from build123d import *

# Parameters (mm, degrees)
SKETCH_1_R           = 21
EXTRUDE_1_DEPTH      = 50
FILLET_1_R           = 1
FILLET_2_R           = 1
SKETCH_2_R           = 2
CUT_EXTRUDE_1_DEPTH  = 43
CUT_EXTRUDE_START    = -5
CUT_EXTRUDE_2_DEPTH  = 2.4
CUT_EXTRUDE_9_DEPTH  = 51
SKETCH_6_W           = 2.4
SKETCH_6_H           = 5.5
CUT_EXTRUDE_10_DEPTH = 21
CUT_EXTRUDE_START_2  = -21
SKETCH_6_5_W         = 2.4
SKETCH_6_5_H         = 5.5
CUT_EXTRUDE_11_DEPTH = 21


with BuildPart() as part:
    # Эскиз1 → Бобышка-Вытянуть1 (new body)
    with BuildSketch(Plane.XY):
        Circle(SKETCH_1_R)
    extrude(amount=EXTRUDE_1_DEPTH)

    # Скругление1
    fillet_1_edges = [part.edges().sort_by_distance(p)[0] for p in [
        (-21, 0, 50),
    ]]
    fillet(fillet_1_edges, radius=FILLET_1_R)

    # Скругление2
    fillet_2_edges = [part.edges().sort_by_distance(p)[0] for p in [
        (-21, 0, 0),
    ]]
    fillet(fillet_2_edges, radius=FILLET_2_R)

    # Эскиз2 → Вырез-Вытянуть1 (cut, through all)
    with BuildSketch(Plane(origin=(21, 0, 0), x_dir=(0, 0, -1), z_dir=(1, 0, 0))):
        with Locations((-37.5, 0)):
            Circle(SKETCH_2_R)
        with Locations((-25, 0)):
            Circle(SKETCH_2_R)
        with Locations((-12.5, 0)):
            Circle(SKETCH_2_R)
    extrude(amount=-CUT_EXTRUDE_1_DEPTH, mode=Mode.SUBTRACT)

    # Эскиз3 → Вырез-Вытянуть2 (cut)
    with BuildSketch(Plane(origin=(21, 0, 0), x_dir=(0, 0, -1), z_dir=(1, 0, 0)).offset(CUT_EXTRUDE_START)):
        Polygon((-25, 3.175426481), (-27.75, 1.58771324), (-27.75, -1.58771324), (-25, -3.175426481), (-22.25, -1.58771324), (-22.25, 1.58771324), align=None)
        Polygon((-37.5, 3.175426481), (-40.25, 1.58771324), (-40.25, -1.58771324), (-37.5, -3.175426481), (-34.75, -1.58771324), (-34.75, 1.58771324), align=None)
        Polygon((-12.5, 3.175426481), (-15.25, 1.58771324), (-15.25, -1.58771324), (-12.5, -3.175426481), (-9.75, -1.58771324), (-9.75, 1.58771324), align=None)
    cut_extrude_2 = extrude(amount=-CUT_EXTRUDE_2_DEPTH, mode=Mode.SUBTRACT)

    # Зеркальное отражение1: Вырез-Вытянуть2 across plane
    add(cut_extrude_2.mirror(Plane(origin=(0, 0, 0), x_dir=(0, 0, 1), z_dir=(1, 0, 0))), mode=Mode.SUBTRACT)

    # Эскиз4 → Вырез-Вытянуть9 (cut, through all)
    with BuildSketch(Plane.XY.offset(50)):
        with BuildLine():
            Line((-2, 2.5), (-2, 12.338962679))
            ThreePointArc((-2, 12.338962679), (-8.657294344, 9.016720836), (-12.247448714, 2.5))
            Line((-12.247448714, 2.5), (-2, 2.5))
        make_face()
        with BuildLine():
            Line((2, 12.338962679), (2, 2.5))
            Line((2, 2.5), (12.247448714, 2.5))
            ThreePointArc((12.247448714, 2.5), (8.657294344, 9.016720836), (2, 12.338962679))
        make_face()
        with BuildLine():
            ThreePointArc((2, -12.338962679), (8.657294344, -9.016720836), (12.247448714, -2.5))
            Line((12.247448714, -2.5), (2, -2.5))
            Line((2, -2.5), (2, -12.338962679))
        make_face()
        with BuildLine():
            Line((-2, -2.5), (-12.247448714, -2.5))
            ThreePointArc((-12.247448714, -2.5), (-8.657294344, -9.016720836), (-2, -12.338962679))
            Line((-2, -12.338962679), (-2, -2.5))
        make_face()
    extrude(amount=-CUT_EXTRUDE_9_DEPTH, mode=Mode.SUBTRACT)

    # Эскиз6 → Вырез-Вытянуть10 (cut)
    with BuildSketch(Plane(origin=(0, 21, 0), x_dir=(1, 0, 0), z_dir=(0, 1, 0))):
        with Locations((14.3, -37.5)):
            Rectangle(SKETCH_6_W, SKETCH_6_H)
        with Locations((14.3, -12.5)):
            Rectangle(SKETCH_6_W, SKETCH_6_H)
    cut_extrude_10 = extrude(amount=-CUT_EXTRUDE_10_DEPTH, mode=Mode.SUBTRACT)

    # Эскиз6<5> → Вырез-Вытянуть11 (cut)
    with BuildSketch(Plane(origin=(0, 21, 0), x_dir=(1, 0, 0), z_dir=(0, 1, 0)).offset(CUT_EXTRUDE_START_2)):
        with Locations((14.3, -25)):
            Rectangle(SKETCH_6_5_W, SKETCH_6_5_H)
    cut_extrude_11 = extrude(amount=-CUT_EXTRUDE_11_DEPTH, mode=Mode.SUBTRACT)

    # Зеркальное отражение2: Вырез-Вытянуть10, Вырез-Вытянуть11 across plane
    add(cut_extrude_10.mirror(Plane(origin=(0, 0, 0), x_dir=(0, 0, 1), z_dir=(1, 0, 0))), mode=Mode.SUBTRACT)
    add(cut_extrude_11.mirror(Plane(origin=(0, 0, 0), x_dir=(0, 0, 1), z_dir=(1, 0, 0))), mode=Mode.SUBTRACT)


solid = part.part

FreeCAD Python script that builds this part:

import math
import FreeCAD as App
import Part
import Sketcher

V = App.Vector
Q = App.Units.Quantity


def edges_at(feature, points):
    """Names of the edges that pass closest to the given points."""
    edges = feature.Shape.Edges
    near = lambda p: min(range(len(edges)), key=lambda i: edges[i].distToShape(Part.Vertex(*p))[0])
    return sorted({f"Edge{near(p) + 1}" for p in points})

doc = App.newDocument("Part")
params = doc.addObject("Spreadsheet::Sheet", "Params")
for row, (alias, value) in enumerate([
    ("sketch1_diameter", "42 mm"),
    ("pad1_length", "50 mm"),
    ("fillet_radius", "1 mm"),
    ("fillet2_radius", "1 mm"),
    ("sketch2_diameter", "4 mm"),
    ("pocket2_length", "2.4 mm"),
    ("sketch4_radius", "12.5 mm"),
    ("sketch5_width", "2.4 mm"),
    ("sketch5_height", "5.5 mm"),
    ("pocket4_length", "21 mm"),
    ("sketch6_width", "2.4 mm"),
    ("sketch6_height", "5.5 mm"),
    ("pocket5_length", "21 mm"),
], start=1):
    params.set(f"A{row}", alias)
    params.set(f"B{row}", "=" + value)
    params.setAlias(f"B{row}", alias)

body = doc.addObject("PartDesign::Body", "Body")

# Sketch on XY plane
sketch1 = body.newObject("Sketcher::SketchObject", "Sketch")
sketch1.AttachmentSupport = (doc.getObject("XY_Plane"), [""])
sketch1.MapMode = "FlatFace"
sketch1.addGeometry(Part.Circle(V(0, 0, 0), V(0, 0, 1), 21), False)
sketch1.addConstraint(Sketcher.Constraint("Coincident", 0, 3, -1, 1))
sketch1.addConstraint(Sketcher.Constraint("Diameter", 0, 42.0))
sketch1.setExpression("Constraints[1]", "Params.sketch1_diameter")
pad1 = body.newObject("PartDesign::Pad", "Pad")
pad1.Profile = sketch1
pad1.setExpression("Length", "Params.pad1_length")
doc.recompute()

fillet = body.newObject("PartDesign::Fillet", "Fillet")
fillet.Base = (pad1, edges_at(pad1, [(-21, 0, 50)]))
fillet.setExpression("Radius", "Params.fillet_radius")
doc.recompute()

fillet2 = body.newObject("PartDesign::Fillet", "Fillet001")
fillet2.Base = (fillet, edges_at(fillet, [(-21, 0, 0)]))
fillet2.setExpression("Radius", "Params.fillet2_radius")

# Sketch on YZ plane
sketch2 = body.newObject("Sketcher::SketchObject", "Sketch001")
sketch2.AttachmentSupport = (doc.getObject("YZ_Plane"), [""])
sketch2.MapMode = "FlatFace"
sketch2.AttachmentOffset = App.Placement(V(0, 0, 21), App.Rotation())
sketch2.addGeometry(Part.Circle(V(0, 37.5, 0), V(0, 0, 1), 2), False)
sketch2.addGeometry(Part.Circle(V(0, 25, 0), V(0, 0, 1), 2), False)
sketch2.addGeometry(Part.Circle(V(0, 12.5, 0), V(0, 0, 1), 2), False)
sketch2.addConstraint(Sketcher.Constraint("Equal", 0, 1))
sketch2.addConstraint(Sketcher.Constraint("Equal", 1, 2))
sketch2.addConstraint(Sketcher.Constraint("PointOnObject", 0, 3, -2))
sketch2.addConstraint(Sketcher.Constraint("PointOnObject", 1, 3, -2))
sketch2.addConstraint(Sketcher.Constraint("PointOnObject", 2, 3, -2))
sketch2.addConstraint(Sketcher.Constraint("Diameter", 0, 4.0))
sketch2.addConstraint(Sketcher.Constraint("DistanceY", -1, 1, 1, 3, 25.0))
sketch2.addConstraint(Sketcher.Constraint("DistanceY", 2, 3, 0, 3, 25.0))
sketch2.addConstraint(Sketcher.Constraint("DistanceY", -1, 1, 0, 3, 37.5))
sketch2.setExpression("Constraints[5]", "Params.sketch2_diameter")
pocket1 = body.newObject("PartDesign::Pocket", "Pocket")
pocket1.Profile = sketch2
pocket1.Type = "ThroughAll"

# Sketch on YZ plane
sketch3 = body.newObject("Sketcher::SketchObject", "Sketch002")
sketch3.AttachmentSupport = (doc.getObject("YZ_Plane"), [""])
sketch3.MapMode = "FlatFace"
sketch3.AttachmentOffset = App.Placement(V(0, 0, 16), App.Rotation())
sketch3.addGeometry(Part.LineSegment(V(3.2, 25, 0), V(1.6, 27.8, 0)), False)
sketch3.addGeometry(Part.LineSegment(V(1.6, 27.8, 0), V(-1.6, 27.8, 0)), False)
sketch3.addGeometry(Part.LineSegment(V(-1.6, 27.8, 0), V(-3.2, 25, 0)), False)
sketch3.addGeometry(Part.LineSegment(V(-3.2, 25, 0), V(-1.6, 22.2, 0)), False)
sketch3.addGeometry(Part.LineSegment(V(-1.6, 22.2, 0), V(1.6, 22.2, 0)), False)
sketch3.addGeometry(Part.LineSegment(V(1.6, 22.2, 0), V(3.2, 25, 0)), False)
sketch3.addGeometry(Part.LineSegment(V(3.2, 37.5, 0), V(1.6, 40.2, 0)), False)
sketch3.addGeometry(Part.LineSegment(V(1.6, 40.2, 0), V(-1.6, 40.2, 0)), False)
sketch3.addGeometry(Part.LineSegment(V(-1.6, 40.2, 0), V(-3.2, 37.5, 0)), False)
sketch3.addGeometry(Part.LineSegment(V(-3.2, 37.5, 0), V(-1.6, 34.8, 0)), False)
sketch3.addGeometry(Part.LineSegment(V(-1.6, 34.8, 0), V(1.6, 34.8, 0)), False)
sketch3.addGeometry(Part.LineSegment(V(1.6, 34.8, 0), V(3.2, 37.5, 0)), False)
sketch3.addGeometry(Part.LineSegment(V(3.2, 12.5, 0), V(1.6, 15.2, 0)), False)
sketch3.addGeometry(Part.LineSegment(V(1.6, 15.2, 0), V(-1.6, 15.2, 0)), False)
sketch3.addGeometry(Part.LineSegment(V(-1.6, 15.2, 0), V(-3.2, 12.5, 0)), False)
sketch3.addGeometry(Part.LineSegment(V(-3.2, 12.5, 0), V(-1.6, 9.8, 0)), False)
sketch3.addGeometry(Part.LineSegment(V(-1.6, 9.8, 0), V(1.6, 9.8, 0)), False)
sketch3.addGeometry(Part.LineSegment(V(1.6, 9.8, 0), V(3.2, 12.5, 0)), False)
sketch3.addConstraint(Sketcher.Constraint("Coincident", 0, 2, 1, 1))
sketch3.addConstraint(Sketcher.Constraint("Coincident", 1, 2, 2, 1))
sketch3.addConstraint(Sketcher.Constraint("Coincident", 2, 2, 3, 1))
sketch3.addConstraint(Sketcher.Constraint("Coincident", 3, 2, 4, 1))
sketch3.addConstraint(Sketcher.Constraint("Coincident", 4, 2, 5, 1))
sketch3.addConstraint(Sketcher.Constraint("Coincident", 5, 2, 0, 1))
sketch3.addConstraint(Sketcher.Constraint("Coincident", 6, 2, 7, 1))
sketch3.addConstraint(Sketcher.Constraint("Coincident", 7, 2, 8, 1))
sketch3.addConstraint(Sketcher.Constraint("Coincident", 8, 2, 9, 1))
sketch3.addConstraint(Sketcher.Constraint("Coincident", 9, 2, 10, 1))
sketch3.addConstraint(Sketcher.Constraint("Coincident", 10, 2, 11, 1))
sketch3.addConstraint(Sketcher.Constraint("Coincident", 11, 2, 6, 1))
sketch3.addConstraint(Sketcher.Constraint("Coincident", 12, 2, 13, 1))
sketch3.addConstraint(Sketcher.Constraint("Coincident", 13, 2, 14, 1))
sketch3.addConstraint(Sketcher.Constraint("Coincident", 14, 2, 15, 1))
sketch3.addConstraint(Sketcher.Constraint("Coincident", 15, 2, 16, 1))
sketch3.addConstraint(Sketcher.Constraint("Coincident", 16, 2, 17, 1))
sketch3.addConstraint(Sketcher.Constraint("Coincident", 17, 2, 12, 1))
sketch3.addConstraint(Sketcher.Constraint("Horizontal", 1))
sketch3.addConstraint(Sketcher.Constraint("Horizontal", 4))
sketch3.addConstraint(Sketcher.Constraint("Horizontal", 7))
sketch3.addConstraint(Sketcher.Constraint("Horizontal", 10))
sketch3.addConstraint(Sketcher.Constraint("Horizontal", 13))
sketch3.addConstraint(Sketcher.Constraint("Horizontal", 16))
sketch3.addConstraint(Sketcher.Constraint("Symmetric", 2, 2, 5, 2, -2))
sketch3.addConstraint(Sketcher.Constraint("Symmetric", 8, 2, 11, 2, -2))
sketch3.addConstraint(Sketcher.Constraint("Symmetric", 14, 2, 17, 2, -2))
sketch3.addConstraint(Sketcher.Constraint("Parallel", 0, 3))
sketch3.addConstraint(Sketcher.Constraint("Parallel", 2, 5))
sketch3.addConstraint(Sketcher.Constraint("Parallel", 3, 6))
sketch3.addConstraint(Sketcher.Constraint("Parallel", 5, 8))
sketch3.addConstraint(Sketcher.Constraint("Parallel", 6, 9))
sketch3.addConstraint(Sketcher.Constraint("Parallel", 8, 11))
sketch3.addConstraint(Sketcher.Constraint("Parallel", 9, 12))
sketch3.addConstraint(Sketcher.Constraint("Parallel", 11, 14))
sketch3.addConstraint(Sketcher.Constraint("Parallel", 12, 15))
sketch3.addConstraint(Sketcher.Constraint("Parallel", 14, 17))
sketch3.addConstraint(Sketcher.Constraint("Vertical", 1, 2, 3, 2))
sketch3.addConstraint(Sketcher.Constraint("Vertical", 0, 2, 4, 2))
sketch3.addConstraint(Sketcher.Constraint("Vertical", 4, 2, 6, 2))
sketch3.addConstraint(Sketcher.Constraint("Vertical", 2, 2, 8, 2))
sketch3.addConstraint(Sketcher.Constraint("Vertical", 7, 2, 9, 2))
sketch3.addConstraint(Sketcher.Constraint("Vertical", 10, 2, 12, 2))
sketch3.addConstraint(Sketcher.Constraint("Vertical", 8, 2, 14, 2))
sketch3.addConstraint(Sketcher.Constraint("Vertical", 13, 2, 15, 2))
sketch3.addConstraint(Sketcher.Constraint("Angle", 0, Q("120 deg")))
sketch3.addConstraint(Sketcher.Constraint("DistanceY", -1, 1, 2, 2, 25.0))
sketch3.addConstraint(Sketcher.Constraint("DistanceY", 4, 2, 6, 2, 18.0))
sketch3.addConstraint(Sketcher.Constraint("DistanceY", 1, 2, 9, 2, 7.0))
sketch3.addConstraint(Sketcher.Constraint("DistanceY", 12, 2, 4, 2, 7.0))
sketch3.addConstraint(Sketcher.Constraint("DistanceX", 1, 2, 1, 1, 3.175426))
pocket2 = body.newObject("PartDesign::Pocket", "Pocket001")
pocket2.Profile = sketch3
pocket2.setExpression("Length", "Params.pocket2_length")
doc.recompute()

mirrored = body.newObject("PartDesign::Mirrored", "Mirrored")
mirrored.Originals = [pocket2]
mirrored.MirrorPlane = (doc.getObject("YZ_Plane"), [""])
body.Tip = mirrored

# Sketch on XY plane
sketch4 = body.newObject("Sketcher::SketchObject", "Sketch003")
sketch4.AttachmentSupport = (doc.getObject("XY_Plane"), [""])
sketch4.MapMode = "FlatFace"
sketch4.AttachmentOffset = App.Placement(V(0, 0, 50), App.Rotation())
sketch4.addGeometry(Part.LineSegment(V(-2, 2, 0), V(-2, 12, 0)), False)
sketch4.addGeometry(Part.ArcOfCircle(Part.Circle(V(0, 0, 0), V(0, 0, 1), 13), math.radians(99), math.radians(168)), False)
sketch4.addGeometry(Part.LineSegment(V(-12, 2, 0), V(-2, 2, 0)), False)
sketch4.addGeometry(Part.LineSegment(V(2, 12, 0), V(2, 2, 0)), False)
sketch4.addGeometry(Part.LineSegment(V(2, 2, 0), V(12, 2, 0)), False)
sketch4.addGeometry(Part.ArcOfCircle(Part.Circle(V(0, 0, 0), V(0, 0, 1), 13), math.radians(12), math.radians(81)), False)
sketch4.addGeometry(Part.ArcOfCircle(Part.Circle(V(0, 0, 0), V(0, 0, 1), 13), math.radians(-81), math.radians(-12)), False)
sketch4.addGeometry(Part.LineSegment(V(12, -2, 0), V(2, -2, 0)), False)
sketch4.addGeometry(Part.LineSegment(V(2, -2, 0), V(2, -12, 0)), False)
sketch4.addGeometry(Part.LineSegment(V(-2, -2, 0), V(-12, -2, 0)), False)
sketch4.addGeometry(Part.ArcOfCircle(Part.Circle(V(0, 0, 0), V(0, 0, 1), 13), math.radians(-168), math.radians(-99)), False)
sketch4.addGeometry(Part.LineSegment(V(-2, -12, 0), V(-2, -2, 0)), False)
sketch4.addConstraint(Sketcher.Constraint("Coincident", 0, 2, 1, 1))
sketch4.addConstraint(Sketcher.Constraint("Coincident", 1, 2, 2, 1))
sketch4.addConstraint(Sketcher.Constraint("Coincident", 2, 2, 0, 1))
sketch4.addConstraint(Sketcher.Constraint("Coincident", 3, 2, 4, 1))
sketch4.addConstraint(Sketcher.Constraint("Coincident", 4, 2, 5, 1))
sketch4.addConstraint(Sketcher.Constraint("Coincident", 5, 2, 3, 1))
sketch4.addConstraint(Sketcher.Constraint("Coincident", 6, 2, 7, 1))
sketch4.addConstraint(Sketcher.Constraint("Coincident", 7, 2, 8, 1))
sketch4.addConstraint(Sketcher.Constraint("Coincident", 8, 2, 6, 1))
sketch4.addConstraint(Sketcher.Constraint("Coincident", 9, 2, 10, 1))
sketch4.addConstraint(Sketcher.Constraint("Coincident", 10, 2, 11, 1))
sketch4.addConstraint(Sketcher.Constraint("Coincident", 11, 2, 9, 1))
sketch4.addConstraint(Sketcher.Constraint("Vertical", 0))
sketch4.addConstraint(Sketcher.Constraint("Horizontal", 2))
sketch4.addConstraint(Sketcher.Constraint("Vertical", 3))
sketch4.addConstraint(Sketcher.Constraint("Horizontal", 4))
sketch4.addConstraint(Sketcher.Constraint("Horizontal", 7))
sketch4.addConstraint(Sketcher.Constraint("Vertical", 8))
sketch4.addConstraint(Sketcher.Constraint("Horizontal", 9))
sketch4.addConstraint(Sketcher.Constraint("Vertical", 11))
sketch4.addConstraint(Sketcher.Constraint("Coincident", 1, 3, -1, 1))
sketch4.addConstraint(Sketcher.Constraint("Coincident", 5, 3, -1, 1))
sketch4.addConstraint(Sketcher.Constraint("Coincident", 6, 3, -1, 1))
sketch4.addConstraint(Sketcher.Constraint("Coincident", 10, 3, -1, 1))
sketch4.addConstraint(Sketcher.Constraint("Equal", 1, 5))
sketch4.addConstraint(Sketcher.Constraint("Equal", 5, 6))
sketch4.addConstraint(Sketcher.Constraint("Equal", 6, 10))
sketch4.addConstraint(Sketcher.Constraint("Symmetric", 2, 2, 7, 2, -1, 1))
sketch4.addConstraint(Sketcher.Constraint("Symmetric", 3, 2, 11, 2, -1, 1))
sketch4.addConstraint(Sketcher.Constraint("Symmetric", 2, 2, 3, 2, -2))
sketch4.addConstraint(Sketcher.Constraint("Radius", 1, 12.5))
sketch4.addConstraint(Sketcher.Constraint("DistanceX", 0, 2, -1, 1, 2.0))
sketch4.addConstraint(Sketcher.Constraint("DistanceY", 6, 2, 4, 2, 5.0))
sketch4.setExpression("Constraints[30]", "Params.sketch4_radius")
pocket3 = body.newObject("PartDesign::Pocket", "Pocket002")
pocket3.Profile = sketch4
pocket3.Type = "ThroughAll"

# Sketch on XZ plane
sketch5 = body.newObject("Sketcher::SketchObject", "Sketch004")
sketch5.AttachmentSupport = (doc.getObject("XZ_Plane"), [""])
sketch5.MapMode = "FlatFace"
sketch5.AttachmentOffset = App.Placement(V(0, 0, -21), App.Rotation())
sketch5.addGeometry(Part.LineSegment(V(13.1, 34.8, 0), V(13.1, 40.2, 0)), False)
sketch5.addGeometry(Part.LineSegment(V(13.1, 40.2, 0), V(15.5, 40.2, 0)), False)
sketch5.addGeometry(Part.LineSegment(V(15.5, 40.2, 0), V(15.5, 34.8, 0)), False)
sketch5.addGeometry(Part.LineSegment(V(15.5, 34.8, 0), V(13.1, 34.8, 0)), False)
sketch5.addGeometry(Part.LineSegment(V(13.1, 9.8, 0), V(13.1, 15.2, 0)), False)
sketch5.addGeometry(Part.LineSegment(V(13.1, 15.2, 0), V(15.5, 15.2, 0)), False)
sketch5.addGeometry(Part.LineSegment(V(15.5, 15.2, 0), V(15.5, 9.8, 0)), False)
sketch5.addGeometry(Part.LineSegment(V(15.5, 9.8, 0), V(13.1, 9.8, 0)), False)
sketch5.addConstraint(Sketcher.Constraint("Coincident", 0, 2, 1, 1))
sketch5.addConstraint(Sketcher.Constraint("Coincident", 1, 2, 2, 1))
sketch5.addConstraint(Sketcher.Constraint("Coincident", 2, 2, 3, 1))
sketch5.addConstraint(Sketcher.Constraint("Coincident", 3, 2, 0, 1))
sketch5.addConstraint(Sketcher.Constraint("Coincident", 4, 2, 5, 1))
sketch5.addConstraint(Sketcher.Constraint("Coincident", 5, 2, 6, 1))
sketch5.addConstraint(Sketcher.Constraint("Coincident", 6, 2, 7, 1))
sketch5.addConstraint(Sketcher.Constraint("Coincident", 7, 2, 4, 1))
sketch5.addConstraint(Sketcher.Constraint("Vertical", 0))
sketch5.addConstraint(Sketcher.Constraint("Horizontal", 1))
sketch5.addConstraint(Sketcher.Constraint("Vertical", 2))
sketch5.addConstraint(Sketcher.Constraint("Horizontal", 3))
sketch5.addConstraint(Sketcher.Constraint("Vertical", 4))
sketch5.addConstraint(Sketcher.Constraint("Horizontal", 5))
sketch5.addConstraint(Sketcher.Constraint("Vertical", 6))
sketch5.addConstraint(Sketcher.Constraint("Horizontal", 7))
sketch5.addConstraint(Sketcher.Constraint("Vertical", 3, 2, 4, 2))
sketch5.addConstraint(Sketcher.Constraint("Vertical", 2, 2, 5, 2))
sketch5.addConstraint(Sketcher.Constraint("Equal", 2, 4))
sketch5.addConstraint(Sketcher.Constraint("DistanceX", 1, 1, 1, 2, 2.4))
sketch5.addConstraint(Sketcher.Constraint("DistanceY", 0, 1, 0, 2, 5.5))
sketch5.addConstraint(Sketcher.Constraint("DistanceY", 4, 2, 0, 2, 25.0))
sketch5.addConstraint(Sketcher.Constraint("DistanceX", -1, 1, 0, 2, 13.1))
sketch5.addConstraint(Sketcher.Constraint("DistanceY", -1, 1, 0, 2, 40.25))
sketch5.setExpression("Constraints[19]", "Params.sketch5_width")
sketch5.setExpression("Constraints[20]", "Params.sketch5_height")
pocket4 = body.newObject("PartDesign::Pocket", "Pocket003")
pocket4.Profile = sketch5
pocket4.setExpression("Length", "Params.pocket4_length")
pocket4.Reversed = True

# Sketch on XZ plane
sketch6 = body.newObject("Sketcher::SketchObject", "Sketch005")
sketch6.AttachmentSupport = (doc.getObject("XZ_Plane"), [""])
sketch6.MapMode = "FlatFace"
sketch6.addGeometry(Part.LineSegment(V(13.1, 22.2, 0), V(13.1, 27.8, 0)), False)
sketch6.addGeometry(Part.LineSegment(V(13.1, 27.8, 0), V(15.5, 27.8, 0)), False)
sketch6.addGeometry(Part.LineSegment(V(15.5, 27.8, 0), V(15.5, 22.2, 0)), False)
sketch6.addGeometry(Part.LineSegment(V(15.5, 22.2, 0), V(13.1, 22.2, 0)), False)
sketch6.addConstraint(Sketcher.Constraint("Coincident", 0, 2, 1, 1))
sketch6.addConstraint(Sketcher.Constraint("Coincident", 1, 2, 2, 1))
sketch6.addConstraint(Sketcher.Constraint("Coincident", 2, 2, 3, 1))
sketch6.addConstraint(Sketcher.Constraint("Coincident", 3, 2, 0, 1))
sketch6.addConstraint(Sketcher.Constraint("Vertical", 0))
sketch6.addConstraint(Sketcher.Constraint("Horizontal", 1))
sketch6.addConstraint(Sketcher.Constraint("Vertical", 2))
sketch6.addConstraint(Sketcher.Constraint("Horizontal", 3))
sketch6.addConstraint(Sketcher.Constraint("DistanceX", 1, 1, 1, 2, 2.4))
sketch6.addConstraint(Sketcher.Constraint("DistanceY", 0, 1, 0, 2, 5.5))
sketch6.addConstraint(Sketcher.Constraint("DistanceX", -1, 1, 0, 2, 13.1))
sketch6.addConstraint(Sketcher.Constraint("DistanceY", -1, 1, 0, 2, 27.75))
sketch6.setExpression("Constraints[8]", "Params.sketch6_width")
sketch6.setExpression("Constraints[9]", "Params.sketch6_height")
pocket5 = body.newObject("PartDesign::Pocket", "Pocket004")
pocket5.Profile = sketch6
pocket5.setExpression("Length", "Params.pocket5_length")
pocket5.Reversed = True
doc.recompute()

mirrored2 = body.newObject("PartDesign::Mirrored", "Mirrored001")
mirrored2.Originals = [pocket4, pocket5]
mirrored2.MirrorPlane = (doc.getObject("YZ_Plane"), [""])
body.Tip = mirrored2

doc.recompute()
